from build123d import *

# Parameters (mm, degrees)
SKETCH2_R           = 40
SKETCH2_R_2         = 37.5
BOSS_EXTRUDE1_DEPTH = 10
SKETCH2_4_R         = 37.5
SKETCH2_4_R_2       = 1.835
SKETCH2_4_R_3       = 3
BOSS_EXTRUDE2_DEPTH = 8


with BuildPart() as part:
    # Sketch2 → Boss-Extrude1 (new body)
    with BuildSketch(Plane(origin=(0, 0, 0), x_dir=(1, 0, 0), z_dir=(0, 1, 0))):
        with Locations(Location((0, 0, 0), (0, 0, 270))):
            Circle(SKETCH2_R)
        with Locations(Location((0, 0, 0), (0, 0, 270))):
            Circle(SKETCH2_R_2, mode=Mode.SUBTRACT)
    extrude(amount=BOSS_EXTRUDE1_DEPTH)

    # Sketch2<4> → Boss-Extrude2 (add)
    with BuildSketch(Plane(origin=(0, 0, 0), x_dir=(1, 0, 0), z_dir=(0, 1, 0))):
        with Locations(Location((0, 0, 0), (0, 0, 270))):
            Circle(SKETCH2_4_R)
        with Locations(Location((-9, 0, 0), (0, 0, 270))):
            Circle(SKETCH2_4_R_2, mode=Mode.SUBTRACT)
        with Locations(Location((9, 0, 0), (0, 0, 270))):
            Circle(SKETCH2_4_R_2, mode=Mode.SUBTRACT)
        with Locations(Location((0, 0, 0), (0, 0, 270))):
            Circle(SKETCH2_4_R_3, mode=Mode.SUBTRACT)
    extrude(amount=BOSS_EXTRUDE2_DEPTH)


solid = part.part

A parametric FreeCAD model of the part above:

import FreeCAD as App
import Part
import Sketcher

V = App.Vector
Q = App.Units.Quantity

doc = App.newDocument("Part")
params = doc.addObject("Spreadsheet::Sheet", "Params")
for row, (alias, value) in enumerate([
    ("sketch1_diameter", "80 mm"),
    ("sketch1_diameter2", "75 mm"),
    ("pad1_length", "10 mm"),
    ("sketch2_diameter", "75 mm"),
    ("sketch2_diameter2", "6 mm"),
    ("sketch2_diameter3", "3.67 mm"),
    ("pad2_length", "8 mm"),
], start=1):
    params.set(f"A{row}", alias)
    params.set(f"B{row}", "=" + value)
    params.setAlias(f"B{row}", alias)

body = doc.addObject("PartDesign::Body", "Body")

# Sketch on XZ plane
sketch1 = body.newObject("Sketcher::SketchObject", "Sketch")
sketch1.AttachmentSupport = (doc.getObject("XZ_Plane"), [""])
sketch1.MapMode = "FlatFace"
sketch1.addGeometry([
    Part.Circle(V(0, 0, 0), V(0, 0, 1), 40),
    Part.Circle(V(0, 0, 0), V(0, 0, 1), 38),
], False)
sketch1.addConstraint([
    Sketcher.Constraint("Coincident", 0, 3, -1, 1),
    Sketcher.Constraint("Coincident", 1, 3, -1, 1),
    Sketcher.Constraint("Diameter", 0, Q("80 mm")),
    Sketcher.Constraint("Diameter", 1, Q("75 mm")),
])
sketch1.setExpression("Constraints[2]", "Params.sketch1_diameter")
sketch1.setExpression("Constraints[3]", "Params.sketch1_diameter2")
pad1 = body.newObject("PartDesign::Pad", "Pad")
pad1.Profile = sketch1
pad1.setExpression("Length", "Params.pad1_length")
pad1.Reversed = True

# Sketch on XZ plane
sketch2 = body.newObject("Sketcher::SketchObject", "Sketch001")
sketch2.AttachmentSupport = (doc.getObject("XZ_Plane"), [""])
sketch2.MapMode = "FlatFace"
sketch2.addGeometry([
    Part.Circle(V(0, 0, 0), V(0, 0, 1), 37.5),
    Part.Circle(V(-9, 0, 0), V(0, 0, 1), 1.8),
    Part.Circle(V(9, 0, 0), V(0, 0, 1), 1.8),
    Part.Circle(V(0, 0, 0), V(0, 0, 1), 3),
], False)
sketch2.addConstraint([
    Sketcher.Constraint("Coincident", 0, 3, -1, 1),
    Sketcher.Constraint("Coincident", 3, 3, -1, 1),
    Sketcher.Constraint("Equal", 1, 2),
    Sketcher.Constraint("Symmetric", 1, 3, 2, 3, -1, 1),
    Sketcher.Constraint("PointOnObject", 1, 3, -1),
    Sketcher.Constraint("Diameter", 0, Q("75 mm")),
    Sketcher.Constraint("Diameter", 3, Q("6 mm")),
    Sketcher.Constraint("Diameter", 1, Q("3.67 mm")),
    Sketcher.Constraint("DistanceX", 1, 3, -1, 1, Q("9 mm")),
])
sketch2.setExpression("Constraints[5]", "Params.sketch2_diameter")
sketch2.setExpression("Constraints[6]", "Params.sketch2_diameter2")
sketch2.setExpression("Constraints[7]", "Params.sketch2_diameter3")
pad2 = body.newObject("PartDesign::Pad", "Pad001")
pad2.Profile = sketch2
pad2.setExpression("Length", "Params.pad2_length")
pad2.Reversed = True

doc.recompute()
